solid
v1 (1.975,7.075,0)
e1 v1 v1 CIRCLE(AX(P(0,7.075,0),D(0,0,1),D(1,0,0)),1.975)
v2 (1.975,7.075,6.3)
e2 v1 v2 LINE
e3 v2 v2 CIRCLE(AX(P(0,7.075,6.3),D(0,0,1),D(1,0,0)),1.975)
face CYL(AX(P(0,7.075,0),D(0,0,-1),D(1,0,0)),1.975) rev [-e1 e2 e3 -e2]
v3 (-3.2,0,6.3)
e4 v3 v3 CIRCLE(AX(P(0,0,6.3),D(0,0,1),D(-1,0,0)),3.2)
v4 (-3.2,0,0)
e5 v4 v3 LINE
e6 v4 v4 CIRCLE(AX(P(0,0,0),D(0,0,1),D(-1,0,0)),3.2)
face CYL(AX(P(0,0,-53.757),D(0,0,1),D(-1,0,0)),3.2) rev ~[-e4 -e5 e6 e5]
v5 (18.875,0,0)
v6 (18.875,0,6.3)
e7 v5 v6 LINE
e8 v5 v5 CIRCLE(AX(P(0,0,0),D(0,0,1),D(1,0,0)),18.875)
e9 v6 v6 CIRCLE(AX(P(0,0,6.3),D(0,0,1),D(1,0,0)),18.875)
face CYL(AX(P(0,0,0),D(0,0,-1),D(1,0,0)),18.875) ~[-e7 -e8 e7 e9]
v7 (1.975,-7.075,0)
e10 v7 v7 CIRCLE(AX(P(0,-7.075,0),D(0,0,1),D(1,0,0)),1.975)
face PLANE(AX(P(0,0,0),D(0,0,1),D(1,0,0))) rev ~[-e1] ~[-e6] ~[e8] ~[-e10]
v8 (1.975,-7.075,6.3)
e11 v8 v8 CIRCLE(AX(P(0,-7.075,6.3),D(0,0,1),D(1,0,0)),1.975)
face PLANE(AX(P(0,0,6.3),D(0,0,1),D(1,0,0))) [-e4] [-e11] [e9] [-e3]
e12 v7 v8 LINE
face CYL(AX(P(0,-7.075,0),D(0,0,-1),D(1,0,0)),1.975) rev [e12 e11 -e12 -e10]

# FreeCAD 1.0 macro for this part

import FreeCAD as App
import Part
import Sketcher

V = App.Vector

doc = App.newDocument("Part")
params = doc.addObject("Spreadsheet::Sheet", "Params")
for row, (alias, value) in enumerate([
    ("sketch1_diameter", "37.75 mm"),
    ("sketch1_diameter2", "3.95 mm"),
    ("pad1_length", "6.3 mm"),
    ("sketch2_diameter", "6.4 mm"),
    ("hole_diameter", "6.4 mm"),
], start=1):
    params.set(f"A{row}", alias)
    params.set(f"B{row}", "=" + value)
    params.setAlias(f"B{row}", alias)

body = doc.addObject("PartDesign::Body", "Body")

sketch1 = doc.addObject("Sketcher::SketchObject", "Sketch")
body.addObject(sketch1)
sketch1.AttachmentSupport = (doc.XY_Plane, [""])
sketch1.MapMode = "FlatFace"
sketch1.addGeometry([
    Part.Circle(V(0, 0, 0), V(0, 0, 1), 18.875),
    Part.Circle(V(0, -7.075, 0), V(0, 0, 1), 1.975),
    Part.Circle(V(0, 7.075, 0), V(0, 0, 1), 1.975),
], False)
sketch1.addConstraint([
    Sketcher.Constraint("Coincident", 0, 3, -1, 1),
    Sketcher.Constraint("Equal", 1, 2),
    Sketcher.Constraint("Symmetric", 1, 3, 2, 3, -1, 1),
    Sketcher.Constraint("PointOnObject", 1, 3, -2),
    Sketcher.Constraint("Diameter", 0, 37.75),
    Sketcher.Constraint("Diameter", 1, 3.95),
    Sketcher.Constraint("DistanceY", 1, 3, 2, 3, 14.15),
])
sketch1.setExpression("Constraints[4]", "Params.sketch1_diameter")
sketch1.setExpression("Constraints[5]", "Params.sketch1_diameter2")
pad1 = doc.addObject("PartDesign::Pad", "Pad")
body.addObject(pad1)
pad1.Profile = sketch1
pad1.setExpression("Length", "Params.pad1_length")

sketch2 = doc.addObject("Sketcher::SketchObject", "Sketch001")
body.addObject(sketch2)
sketch2.AttachmentSupport = (doc.XY_Plane, [""])
sketch2.MapMode = "FlatFace"
sketch2.addGeometry(Part.Circle(V(0, 0, 0), V(0, 0, 1), 3.2), False)
sketch2.addConstraint([
    Sketcher.Constraint("Coincident", 0, 3, -1, 1),
    Sketcher.Constraint("Diameter", 0, 6.4),
])
sketch2.setExpression("Constraints[1]", "Params.sketch2_diameter")
doc.recompute()
hole = doc.addObject("PartDesign::Hole", "Hole")
body.addObject(hole)
hole.Profile = sketch2
hole.ThreadType = "None"
hole.setExpression("Diameter", "Params.hole_diameter")
hole.DepthType = "ThroughAll"
hole.Reversed = True

doc.recompute()
